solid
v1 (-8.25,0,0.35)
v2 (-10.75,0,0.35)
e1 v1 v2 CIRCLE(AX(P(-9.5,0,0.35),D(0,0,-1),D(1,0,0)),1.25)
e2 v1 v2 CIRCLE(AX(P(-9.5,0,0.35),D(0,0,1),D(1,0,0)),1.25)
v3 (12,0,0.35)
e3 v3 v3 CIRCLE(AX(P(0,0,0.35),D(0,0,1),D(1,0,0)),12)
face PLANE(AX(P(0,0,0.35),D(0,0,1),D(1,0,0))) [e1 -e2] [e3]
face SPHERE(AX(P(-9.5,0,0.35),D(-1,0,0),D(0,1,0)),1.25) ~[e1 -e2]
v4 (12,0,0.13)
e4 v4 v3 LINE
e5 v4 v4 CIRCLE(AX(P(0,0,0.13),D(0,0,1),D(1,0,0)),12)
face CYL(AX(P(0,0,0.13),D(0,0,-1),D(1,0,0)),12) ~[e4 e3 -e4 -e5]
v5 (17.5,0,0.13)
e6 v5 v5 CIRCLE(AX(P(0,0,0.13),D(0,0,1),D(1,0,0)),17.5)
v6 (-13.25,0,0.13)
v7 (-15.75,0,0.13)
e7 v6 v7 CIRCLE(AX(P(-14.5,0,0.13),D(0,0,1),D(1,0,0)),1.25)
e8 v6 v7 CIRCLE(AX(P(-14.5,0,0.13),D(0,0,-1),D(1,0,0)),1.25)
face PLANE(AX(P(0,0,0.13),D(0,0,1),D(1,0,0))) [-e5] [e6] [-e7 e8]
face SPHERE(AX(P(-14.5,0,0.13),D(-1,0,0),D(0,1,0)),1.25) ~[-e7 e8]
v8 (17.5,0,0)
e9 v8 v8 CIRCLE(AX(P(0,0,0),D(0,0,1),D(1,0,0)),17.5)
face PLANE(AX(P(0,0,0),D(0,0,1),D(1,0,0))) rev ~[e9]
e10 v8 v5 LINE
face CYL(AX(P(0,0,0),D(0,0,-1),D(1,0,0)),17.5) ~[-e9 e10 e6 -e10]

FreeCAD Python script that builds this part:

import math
import FreeCAD as App
import Part
import Sketcher
from FreeCAD import Vector
Q = App.Units.Quantity

doc = App.newDocument("Part")
body = doc.addObject("PartDesign::Body", "Body")

sketch1 = body.newObject("Sketcher::SketchObject", "Sketch")
sketch1.AttachmentSupport = (doc.getObject("XY_Plane"), [""])
sketch1.MapMode = "FlatFace"
sketch1.addGeometry(Part.Circle(Vector(0, 0, 0), Vector(0, 0, 1), 18), False)
sketch1.addConstraint(Sketcher.Constraint("Coincident", 0, 3, -1, 1))
sketch1.addConstraint(Sketcher.Constraint("Diameter", 0, Q("35 mm")))
pad1 = body.newObject("PartDesign::Pad", "Pad")
pad1.Profile = sketch1
pad1.Length = 0.13

sketch2 = body.newObject("Sketcher::SketchObject", "Sketch001")
sketch2.AttachmentSupport = (doc.getObject("XY_Plane"), [""])
sketch2.MapMode = "FlatFace"
sketch2.AttachmentOffset = App.Placement(Vector(0, 0, 0.13), App.Rotation())
sketch2.addGeometry(Part.Circle(Vector(0, 0, 0), Vector(0, 0, 1), 12), False)
sketch2.addConstraint(Sketcher.Constraint("Coincident", 0, 3, -1, 1))
sketch2.addConstraint(Sketcher.Constraint("Diameter", 0, Q("24 mm")))
pad2 = body.newObject("PartDesign::Pad", "Pad001")
pad2.Profile = sketch2
pad2.Length = 0.22

sketch3 = body.newObject("Sketcher::SketchObject", "Sketch002")
sketch3.AttachmentSupport = (doc.getObject("XY_Plane"), [""])
sketch3.MapMode = "FlatFace"
sketch3.AttachmentOffset = App.Placement(Vector(0, 0, 0.13), App.Rotation())
sketch3.addGeometry(Part.ArcOfCircle(Part.Circle(Vector(-14.5, 0, 0), Vector(0, 0, 1), 1.2), math.radians(0), math.radians(180)), False)
sketch3.addGeometry(Part.LineSegment(Vector(-15.8, 0, 0), Vector(-13.2, 0, 0)), False)
sketch3.addConstraint(Sketcher.Constraint("Coincident", 0, 1, 1, 2))
sketch3.addConstraint(Sketcher.Constraint("Coincident", 1, 1, 0, 2))
sketch3.addConstraint(Sketcher.Constraint("Horizontal", 1))
sketch3.addConstraint(Sketcher.Constraint("PointOnObject", 0, 3, -1))
sketch3.addConstraint(Sketcher.Constraint("PointOnObject", 0, 1, -1))
sketch3.addConstraint(Sketcher.Constraint("Radius", 0, Q("1.25 mm")))
sketch3.addConstraint(Sketcher.Constraint("DistanceX", 0, 3, -1, 1, Q("14.5 mm")))
revolution = body.newObject("PartDesign::Revolution", "Revolution")
revolution.Profile = sketch3
revolution.ReferenceAxis = (sketch3, ["H_Axis"])
revolution.Angle = 180

sketch4 = body.newObject("Sketcher::SketchObject", "Sketch003")
sketch4.AttachmentSupport = (doc.getObject("XY_Plane"), [""])
sketch4.MapMode = "FlatFace"
sketch4.AttachmentOffset = App.Placement(Vector(0, 0, 0.35), App.Rotation())
sketch4.addGeometry(Part.ArcOfCircle(Part.Circle(Vector(-9.5, 0, 0), Vector(0, 0, 1), 1.2), math.radians(0), math.radians(180)), False)
sketch4.addGeometry(Part.LineSegment(Vector(-10.8, 0, 0), Vector(-8.2, 0, 0)), False)
sketch4.addConstraint(Sketcher.Constraint("Coincident", 0, 1, 1, 2))
sketch4.addConstraint(Sketcher.Constraint("Coincident", 1, 1, 0, 2))
sketch4.addConstraint(Sketcher.Constraint("Horizontal", 1))
sketch4.addConstraint(Sketcher.Constraint("PointOnObject", 0, 3, -1))
sketch4.addConstraint(Sketcher.Constraint("PointOnObject", 0, 1, -1))
sketch4.addConstraint(Sketcher.Constraint("Radius", 0, Q("1.25 mm")))
sketch4.addConstraint(Sketcher.Constraint("DistanceX", 0, 3, -1, 1, Q("9.5 mm")))
revolution2 = body.newObject("PartDesign::Revolution", "Revolution001")
revolution2.Profile = sketch4
revolution2.ReferenceAxis = (sketch4, ["H_Axis"])
revolution2.Angle = 180

doc.recompute()
